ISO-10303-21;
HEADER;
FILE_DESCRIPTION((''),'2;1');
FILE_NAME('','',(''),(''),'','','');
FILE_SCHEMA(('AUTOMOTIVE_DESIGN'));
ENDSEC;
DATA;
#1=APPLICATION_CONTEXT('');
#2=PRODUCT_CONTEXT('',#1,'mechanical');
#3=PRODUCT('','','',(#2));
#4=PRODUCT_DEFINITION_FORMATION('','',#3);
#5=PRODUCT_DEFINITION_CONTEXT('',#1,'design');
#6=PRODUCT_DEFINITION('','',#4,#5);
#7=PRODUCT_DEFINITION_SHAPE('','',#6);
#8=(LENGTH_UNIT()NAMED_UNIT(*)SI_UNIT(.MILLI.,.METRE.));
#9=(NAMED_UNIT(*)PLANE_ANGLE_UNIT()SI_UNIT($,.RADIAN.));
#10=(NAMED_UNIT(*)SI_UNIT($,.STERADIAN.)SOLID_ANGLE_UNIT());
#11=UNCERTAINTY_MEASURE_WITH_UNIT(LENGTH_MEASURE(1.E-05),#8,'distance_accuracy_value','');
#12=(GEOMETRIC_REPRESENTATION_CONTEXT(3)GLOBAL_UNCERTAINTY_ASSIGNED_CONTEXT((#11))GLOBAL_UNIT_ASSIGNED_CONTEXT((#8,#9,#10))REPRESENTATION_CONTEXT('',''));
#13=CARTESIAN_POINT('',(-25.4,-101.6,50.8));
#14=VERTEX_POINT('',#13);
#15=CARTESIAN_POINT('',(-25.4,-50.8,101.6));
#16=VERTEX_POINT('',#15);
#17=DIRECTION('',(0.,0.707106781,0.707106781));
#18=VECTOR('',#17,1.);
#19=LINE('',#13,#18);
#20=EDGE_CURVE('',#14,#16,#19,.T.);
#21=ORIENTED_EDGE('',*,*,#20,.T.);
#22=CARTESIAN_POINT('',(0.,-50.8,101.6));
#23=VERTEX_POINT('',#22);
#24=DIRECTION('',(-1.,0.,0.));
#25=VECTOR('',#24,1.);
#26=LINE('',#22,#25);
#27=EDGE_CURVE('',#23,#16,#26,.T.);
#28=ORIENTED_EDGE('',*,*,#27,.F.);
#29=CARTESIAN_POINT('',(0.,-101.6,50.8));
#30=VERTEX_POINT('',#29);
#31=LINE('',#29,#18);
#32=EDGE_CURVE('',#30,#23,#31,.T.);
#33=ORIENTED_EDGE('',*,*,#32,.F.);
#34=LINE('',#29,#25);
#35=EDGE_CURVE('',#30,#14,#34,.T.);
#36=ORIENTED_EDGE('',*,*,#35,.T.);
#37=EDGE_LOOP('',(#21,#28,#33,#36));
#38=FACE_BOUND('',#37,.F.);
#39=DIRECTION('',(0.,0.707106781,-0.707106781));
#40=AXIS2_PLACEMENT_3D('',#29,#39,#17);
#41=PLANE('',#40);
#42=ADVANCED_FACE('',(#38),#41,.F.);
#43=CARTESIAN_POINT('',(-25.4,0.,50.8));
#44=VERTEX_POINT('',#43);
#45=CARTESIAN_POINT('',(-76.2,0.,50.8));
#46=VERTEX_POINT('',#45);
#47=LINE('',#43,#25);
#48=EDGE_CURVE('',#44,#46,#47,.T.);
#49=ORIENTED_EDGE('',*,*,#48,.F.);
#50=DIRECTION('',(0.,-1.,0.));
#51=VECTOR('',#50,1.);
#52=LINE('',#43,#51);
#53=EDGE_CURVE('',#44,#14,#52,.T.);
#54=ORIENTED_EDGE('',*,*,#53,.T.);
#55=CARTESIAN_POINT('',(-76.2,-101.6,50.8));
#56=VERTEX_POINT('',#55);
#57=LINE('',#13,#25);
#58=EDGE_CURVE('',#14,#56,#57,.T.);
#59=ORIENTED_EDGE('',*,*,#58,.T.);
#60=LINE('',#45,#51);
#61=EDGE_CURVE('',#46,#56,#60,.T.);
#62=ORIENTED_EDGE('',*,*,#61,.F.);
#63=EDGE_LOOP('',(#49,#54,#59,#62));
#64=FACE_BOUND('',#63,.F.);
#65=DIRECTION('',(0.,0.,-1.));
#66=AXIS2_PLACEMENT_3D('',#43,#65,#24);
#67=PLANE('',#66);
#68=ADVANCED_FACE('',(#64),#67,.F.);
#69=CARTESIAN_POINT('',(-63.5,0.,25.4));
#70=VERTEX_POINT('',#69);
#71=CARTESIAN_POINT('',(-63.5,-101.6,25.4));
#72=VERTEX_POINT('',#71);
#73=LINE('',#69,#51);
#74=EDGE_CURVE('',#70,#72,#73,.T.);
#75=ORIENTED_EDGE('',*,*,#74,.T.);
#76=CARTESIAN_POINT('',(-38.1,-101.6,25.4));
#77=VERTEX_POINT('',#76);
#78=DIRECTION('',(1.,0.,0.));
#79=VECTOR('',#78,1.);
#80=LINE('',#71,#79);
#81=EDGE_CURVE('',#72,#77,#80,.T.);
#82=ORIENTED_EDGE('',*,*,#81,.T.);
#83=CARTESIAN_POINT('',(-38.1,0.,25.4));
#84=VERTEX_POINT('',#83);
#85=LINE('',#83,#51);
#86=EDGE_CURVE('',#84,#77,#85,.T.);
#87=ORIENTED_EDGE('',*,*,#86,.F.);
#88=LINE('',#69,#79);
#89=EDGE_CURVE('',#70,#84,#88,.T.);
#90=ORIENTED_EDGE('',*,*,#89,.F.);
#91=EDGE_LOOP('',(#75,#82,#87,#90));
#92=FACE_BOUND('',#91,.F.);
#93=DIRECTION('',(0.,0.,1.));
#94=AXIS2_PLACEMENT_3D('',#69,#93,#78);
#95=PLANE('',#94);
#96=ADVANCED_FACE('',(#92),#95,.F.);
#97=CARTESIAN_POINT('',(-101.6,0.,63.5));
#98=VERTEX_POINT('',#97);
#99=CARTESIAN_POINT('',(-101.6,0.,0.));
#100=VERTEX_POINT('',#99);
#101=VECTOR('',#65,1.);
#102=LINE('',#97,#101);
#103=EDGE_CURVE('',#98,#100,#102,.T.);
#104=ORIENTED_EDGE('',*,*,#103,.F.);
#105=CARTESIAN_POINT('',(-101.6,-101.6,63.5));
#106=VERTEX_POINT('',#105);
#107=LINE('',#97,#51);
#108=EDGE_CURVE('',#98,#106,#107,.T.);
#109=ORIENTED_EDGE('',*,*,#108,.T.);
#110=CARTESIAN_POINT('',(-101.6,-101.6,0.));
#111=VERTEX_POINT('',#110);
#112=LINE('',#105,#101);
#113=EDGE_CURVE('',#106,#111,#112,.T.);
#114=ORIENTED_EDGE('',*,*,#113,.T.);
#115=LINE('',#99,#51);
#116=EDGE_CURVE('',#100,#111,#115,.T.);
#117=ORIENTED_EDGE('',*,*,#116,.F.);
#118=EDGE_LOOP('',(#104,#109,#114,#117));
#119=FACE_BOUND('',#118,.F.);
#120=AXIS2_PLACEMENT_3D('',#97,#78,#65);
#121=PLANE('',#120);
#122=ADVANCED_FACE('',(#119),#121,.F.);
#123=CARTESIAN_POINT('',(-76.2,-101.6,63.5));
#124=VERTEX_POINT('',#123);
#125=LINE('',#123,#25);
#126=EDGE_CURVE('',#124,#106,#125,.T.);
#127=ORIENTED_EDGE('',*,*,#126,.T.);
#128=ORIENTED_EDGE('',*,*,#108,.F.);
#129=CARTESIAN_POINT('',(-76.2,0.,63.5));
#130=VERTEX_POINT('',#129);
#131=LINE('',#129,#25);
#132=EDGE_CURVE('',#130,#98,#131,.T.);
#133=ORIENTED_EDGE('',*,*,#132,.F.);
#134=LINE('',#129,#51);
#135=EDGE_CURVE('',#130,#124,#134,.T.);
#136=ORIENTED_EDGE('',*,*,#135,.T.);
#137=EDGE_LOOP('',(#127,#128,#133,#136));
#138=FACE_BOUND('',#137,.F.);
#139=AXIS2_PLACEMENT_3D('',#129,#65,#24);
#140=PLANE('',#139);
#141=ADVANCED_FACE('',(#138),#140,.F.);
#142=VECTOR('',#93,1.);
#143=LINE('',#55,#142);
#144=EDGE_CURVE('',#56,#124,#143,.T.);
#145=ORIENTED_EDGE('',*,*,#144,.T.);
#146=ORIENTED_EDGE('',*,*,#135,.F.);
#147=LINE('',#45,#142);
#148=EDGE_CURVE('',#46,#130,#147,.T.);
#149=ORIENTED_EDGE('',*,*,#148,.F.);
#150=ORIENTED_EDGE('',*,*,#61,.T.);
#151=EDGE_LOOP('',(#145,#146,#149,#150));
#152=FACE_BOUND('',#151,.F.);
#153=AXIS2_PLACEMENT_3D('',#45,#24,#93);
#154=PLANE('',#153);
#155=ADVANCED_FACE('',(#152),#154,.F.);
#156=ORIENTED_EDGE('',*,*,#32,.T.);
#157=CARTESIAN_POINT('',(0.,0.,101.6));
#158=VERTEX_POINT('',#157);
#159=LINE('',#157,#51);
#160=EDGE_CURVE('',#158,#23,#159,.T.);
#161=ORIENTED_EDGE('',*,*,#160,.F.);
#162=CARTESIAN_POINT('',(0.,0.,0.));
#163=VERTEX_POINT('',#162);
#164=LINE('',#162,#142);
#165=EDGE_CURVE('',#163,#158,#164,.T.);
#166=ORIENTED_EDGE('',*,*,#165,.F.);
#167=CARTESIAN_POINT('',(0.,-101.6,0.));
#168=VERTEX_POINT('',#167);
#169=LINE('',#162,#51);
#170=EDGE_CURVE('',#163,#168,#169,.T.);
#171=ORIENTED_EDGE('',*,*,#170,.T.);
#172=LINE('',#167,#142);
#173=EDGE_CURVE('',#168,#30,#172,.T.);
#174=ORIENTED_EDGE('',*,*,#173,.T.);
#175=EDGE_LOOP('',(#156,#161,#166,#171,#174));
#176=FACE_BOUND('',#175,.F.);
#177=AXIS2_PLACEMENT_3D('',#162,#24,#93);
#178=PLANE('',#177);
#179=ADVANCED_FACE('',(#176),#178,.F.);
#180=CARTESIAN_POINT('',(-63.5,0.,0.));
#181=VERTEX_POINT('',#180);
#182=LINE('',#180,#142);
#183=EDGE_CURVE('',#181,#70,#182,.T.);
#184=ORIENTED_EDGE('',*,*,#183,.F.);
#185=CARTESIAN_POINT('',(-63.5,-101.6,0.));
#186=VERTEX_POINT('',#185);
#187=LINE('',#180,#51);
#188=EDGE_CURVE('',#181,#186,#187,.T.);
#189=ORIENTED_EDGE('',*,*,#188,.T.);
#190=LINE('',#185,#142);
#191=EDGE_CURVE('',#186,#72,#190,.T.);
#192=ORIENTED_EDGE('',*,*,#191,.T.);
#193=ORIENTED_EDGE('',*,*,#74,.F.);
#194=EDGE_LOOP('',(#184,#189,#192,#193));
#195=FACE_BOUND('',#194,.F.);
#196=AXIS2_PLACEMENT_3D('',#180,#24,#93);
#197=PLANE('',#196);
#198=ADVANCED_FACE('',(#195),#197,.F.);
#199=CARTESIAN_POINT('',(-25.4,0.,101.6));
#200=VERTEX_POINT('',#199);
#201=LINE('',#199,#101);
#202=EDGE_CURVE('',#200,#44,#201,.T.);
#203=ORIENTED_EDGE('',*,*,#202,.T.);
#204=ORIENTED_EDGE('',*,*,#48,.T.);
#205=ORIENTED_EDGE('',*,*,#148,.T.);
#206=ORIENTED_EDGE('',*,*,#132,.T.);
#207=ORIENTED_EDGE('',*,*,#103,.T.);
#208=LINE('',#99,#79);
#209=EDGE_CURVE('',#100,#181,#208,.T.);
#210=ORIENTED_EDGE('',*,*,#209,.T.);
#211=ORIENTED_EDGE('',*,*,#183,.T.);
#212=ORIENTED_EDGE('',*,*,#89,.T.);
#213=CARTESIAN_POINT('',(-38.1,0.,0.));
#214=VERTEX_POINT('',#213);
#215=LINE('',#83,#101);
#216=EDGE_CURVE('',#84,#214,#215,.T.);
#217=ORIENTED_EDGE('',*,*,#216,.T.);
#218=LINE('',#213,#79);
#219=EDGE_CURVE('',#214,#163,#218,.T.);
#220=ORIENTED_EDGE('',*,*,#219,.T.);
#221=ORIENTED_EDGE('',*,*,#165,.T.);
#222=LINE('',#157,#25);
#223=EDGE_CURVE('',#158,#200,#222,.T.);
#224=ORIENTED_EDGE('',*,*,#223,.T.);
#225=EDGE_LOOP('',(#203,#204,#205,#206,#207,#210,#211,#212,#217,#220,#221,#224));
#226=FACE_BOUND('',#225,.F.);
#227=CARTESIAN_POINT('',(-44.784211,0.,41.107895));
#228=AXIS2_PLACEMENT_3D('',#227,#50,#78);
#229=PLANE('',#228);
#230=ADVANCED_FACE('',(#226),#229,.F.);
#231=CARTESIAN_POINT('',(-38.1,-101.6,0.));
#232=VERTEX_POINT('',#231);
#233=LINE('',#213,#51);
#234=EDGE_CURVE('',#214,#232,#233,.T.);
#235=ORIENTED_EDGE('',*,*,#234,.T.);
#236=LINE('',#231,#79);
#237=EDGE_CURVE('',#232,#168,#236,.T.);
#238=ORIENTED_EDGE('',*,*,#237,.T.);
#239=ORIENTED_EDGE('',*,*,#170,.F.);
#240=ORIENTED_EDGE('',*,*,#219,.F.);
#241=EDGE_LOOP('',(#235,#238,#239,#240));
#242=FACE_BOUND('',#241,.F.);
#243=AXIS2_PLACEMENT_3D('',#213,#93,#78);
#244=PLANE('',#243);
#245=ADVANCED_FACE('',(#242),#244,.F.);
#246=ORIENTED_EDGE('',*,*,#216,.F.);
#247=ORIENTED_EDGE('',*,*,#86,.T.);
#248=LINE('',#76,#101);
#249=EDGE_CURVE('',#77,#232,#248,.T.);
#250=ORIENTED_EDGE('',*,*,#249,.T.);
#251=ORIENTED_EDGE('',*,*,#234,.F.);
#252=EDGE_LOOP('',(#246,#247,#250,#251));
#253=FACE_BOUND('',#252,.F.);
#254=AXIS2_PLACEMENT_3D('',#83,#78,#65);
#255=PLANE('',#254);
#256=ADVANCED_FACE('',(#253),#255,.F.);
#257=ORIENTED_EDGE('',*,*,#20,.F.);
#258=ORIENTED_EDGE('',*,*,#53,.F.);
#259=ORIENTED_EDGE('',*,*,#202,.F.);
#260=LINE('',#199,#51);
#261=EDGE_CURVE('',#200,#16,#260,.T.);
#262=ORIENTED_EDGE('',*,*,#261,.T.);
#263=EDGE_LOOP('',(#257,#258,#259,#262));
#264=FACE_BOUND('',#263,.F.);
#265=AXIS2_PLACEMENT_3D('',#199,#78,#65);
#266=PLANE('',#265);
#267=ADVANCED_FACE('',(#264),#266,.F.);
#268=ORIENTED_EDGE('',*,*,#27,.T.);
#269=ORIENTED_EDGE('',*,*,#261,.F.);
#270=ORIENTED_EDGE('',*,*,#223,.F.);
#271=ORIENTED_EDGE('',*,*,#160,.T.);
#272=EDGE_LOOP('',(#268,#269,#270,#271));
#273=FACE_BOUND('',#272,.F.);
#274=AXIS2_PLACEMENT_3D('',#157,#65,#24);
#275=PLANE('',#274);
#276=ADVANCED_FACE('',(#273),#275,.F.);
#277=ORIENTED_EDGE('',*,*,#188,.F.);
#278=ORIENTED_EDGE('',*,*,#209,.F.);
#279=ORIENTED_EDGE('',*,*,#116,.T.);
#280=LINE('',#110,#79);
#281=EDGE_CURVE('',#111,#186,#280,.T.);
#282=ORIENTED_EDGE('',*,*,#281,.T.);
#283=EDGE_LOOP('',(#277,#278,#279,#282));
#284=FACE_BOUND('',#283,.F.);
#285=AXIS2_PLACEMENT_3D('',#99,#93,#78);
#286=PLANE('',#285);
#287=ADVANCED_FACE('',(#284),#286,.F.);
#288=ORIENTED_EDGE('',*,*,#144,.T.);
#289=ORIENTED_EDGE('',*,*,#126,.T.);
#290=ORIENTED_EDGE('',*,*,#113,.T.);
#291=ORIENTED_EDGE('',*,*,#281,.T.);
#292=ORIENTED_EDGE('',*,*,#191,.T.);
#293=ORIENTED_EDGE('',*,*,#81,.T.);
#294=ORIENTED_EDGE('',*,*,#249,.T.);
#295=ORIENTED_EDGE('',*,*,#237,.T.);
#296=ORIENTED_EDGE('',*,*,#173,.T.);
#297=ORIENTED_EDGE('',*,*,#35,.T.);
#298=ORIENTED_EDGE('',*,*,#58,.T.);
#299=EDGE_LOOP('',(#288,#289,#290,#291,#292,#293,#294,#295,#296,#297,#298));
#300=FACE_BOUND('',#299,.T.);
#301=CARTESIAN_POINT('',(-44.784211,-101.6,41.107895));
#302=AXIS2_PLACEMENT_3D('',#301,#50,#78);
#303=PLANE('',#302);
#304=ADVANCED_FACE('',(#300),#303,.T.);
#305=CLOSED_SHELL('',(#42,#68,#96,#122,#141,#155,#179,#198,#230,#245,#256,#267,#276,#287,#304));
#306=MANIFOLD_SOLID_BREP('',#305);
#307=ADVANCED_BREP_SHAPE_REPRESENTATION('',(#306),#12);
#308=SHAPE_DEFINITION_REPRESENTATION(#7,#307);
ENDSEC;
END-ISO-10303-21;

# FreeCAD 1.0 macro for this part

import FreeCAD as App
import Part
import Sketcher
Q = App.Units.Quantity

doc = App.newDocument("Part")
body = doc.addObject("PartDesign::Body", "Body")

sketch1 = body.newObject("Sketcher::SketchObject", "Sketch")
sketch1.AttachmentSupport = (doc.getObject("XZ_Plane"), [""])
sketch1.MapMode = "FlatFace"
sketch1.addGeometry([
    Part.LineSegment(App.Vector(-38, 0, 0), App.Vector(0, 0, 0)),
    Part.LineSegment(App.Vector(0, 0, 0), App.Vector(0, 102, 0)),
    Part.LineSegment(App.Vector(0, 102, 0), App.Vector(-25, 102, 0)),
    Part.LineSegment(App.Vector(-25, 102, 0), App.Vector(-25, 51, 0)),
    Part.LineSegment(App.Vector(-25, 51, 0), App.Vector(-76, 51, 0)),
    Part.LineSegment(App.Vector(-76, 51, 0), App.Vector(-76, 64, 0)),
    Part.LineSegment(App.Vector(-76, 64, 0), App.Vector(-102, 64, 0)),
    Part.LineSegment(App.Vector(-102, 64, 0), App.Vector(-102, 0, 0)),
    Part.LineSegment(App.Vector(-102, 0, 0), App.Vector(-64, 0, 0)),
    Part.LineSegment(App.Vector(-64, 0, 0), App.Vector(-64, 25, 0)),
    Part.LineSegment(App.Vector(-64, 25, 0), App.Vector(-38, 25, 0)),
    Part.LineSegment(App.Vector(-38, 25, 0), App.Vector(-38, 0, 0)),
], False)
sketch1.addConstraint([
    Sketcher.Constraint("Coincident", 0, 2, 1, 1),
    Sketcher.Constraint("Coincident", 1, 2, 2, 1),
    Sketcher.Constraint("Coincident", 2, 2, 3, 1),
    Sketcher.Constraint("Coincident", 3, 2, 4, 1),
    Sketcher.Constraint("Coincident", 4, 2, 5, 1),
    Sketcher.Constraint("Coincident", 5, 2, 6, 1),
    Sketcher.Constraint("Coincident", 6, 2, 7, 1),
    Sketcher.Constraint("Coincident", 7, 2, 8, 1),
    Sketcher.Constraint("Coincident", 8, 2, 9, 1),
    Sketcher.Constraint("Coincident", 9, 2, 10, 1),
    Sketcher.Constraint("Coincident", 10, 2, 11, 1),
    Sketcher.Constraint("Coincident", 11, 2, 0, 1),
    Sketcher.Constraint("Horizontal", 0),
    Sketcher.Constraint("Vertical", 1),
    Sketcher.Constraint("Horizontal", 2),
    Sketcher.Constraint("Vertical", 3),
    Sketcher.Constraint("Horizontal", 4),
    Sketcher.Constraint("Vertical", 5),
    Sketcher.Constraint("Horizontal", 6),
    Sketcher.Constraint("Vertical", 7),
    Sketcher.Constraint("Horizontal", 8),
    Sketcher.Constraint("Vertical", 9),
    Sketcher.Constraint("Horizontal", 10),
    Sketcher.Constraint("Vertical", 11),
    Sketcher.Constraint("Coincident", 0, 2, -1, 1),
    Sketcher.Constraint("PointOnObject", 7, 2, -1),
    Sketcher.Constraint("Equal", 2, 6),
    Sketcher.Constraint("Equal", 0, 8),
    Sketcher.Constraint("Equal", 6, 10),
    Sketcher.Constraint("Equal", 4, 3),
    Sketcher.Constraint("Equal", 10, 9),
    Sketcher.Constraint("DistanceX", 2, 2, 2, 1, Q("1 in")),
    Sketcher.Constraint("DistanceX", 4, 2, 4, 1, Q("2 in")),
    Sketcher.Constraint("DistanceY", 1, 1, 1, 2, Q("4 in")),
    Sketcher.Constraint("DistanceY", 5, 1, 5, 2, Q("0.5 in")),
])
pad1 = body.newObject("PartDesign::Pad", "Pad")
pad1.Profile = sketch1
pad1.Length = Q("4 in")

sketch2 = body.newObject("Sketcher::SketchObject", "Sketch001")
sketch2.AttachmentSupport = (doc.getObject("YZ_Plane"), [""])
sketch2.MapMode = "FlatFace"
sketch2.addGeometry([
    Part.LineSegment(App.Vector(-102, 102, 0), App.Vector(-102, 51, 0)),
    Part.LineSegment(App.Vector(-102, 51, 0), App.Vector(-51, 102, 0)),
    Part.LineSegment(App.Vector(-51, 102, 0), App.Vector(-102, 102, 0)),
], False)
sketch2.addConstraint([
    Sketcher.Constraint("Coincident", 0, 2, 1, 1),
    Sketcher.Constraint("Coincident", 1, 2, 2, 1),
    Sketcher.Constraint("Coincident", 2, 2, 0, 1),
    Sketcher.Constraint("Vertical", 0),
    Sketcher.Constraint("Horizontal", 2),
    Sketcher.Constraint("Equal", 2, 0),
    Sketcher.Constraint("DistanceX", 2, 2, 2, 1, Q("2 in")),
    Sketcher.Constraint("DistanceX", 0, 2, -1, 1, Q("4 in")),
    Sketcher.Constraint("DistanceY", -1, 1, 0, 2, Q("2 in")),
])
pocket1 = body.newObject("PartDesign::Pocket", "Pocket")
pocket1.Profile = sketch2
pocket1.Length = Q("1 in")

doc.recompute()
